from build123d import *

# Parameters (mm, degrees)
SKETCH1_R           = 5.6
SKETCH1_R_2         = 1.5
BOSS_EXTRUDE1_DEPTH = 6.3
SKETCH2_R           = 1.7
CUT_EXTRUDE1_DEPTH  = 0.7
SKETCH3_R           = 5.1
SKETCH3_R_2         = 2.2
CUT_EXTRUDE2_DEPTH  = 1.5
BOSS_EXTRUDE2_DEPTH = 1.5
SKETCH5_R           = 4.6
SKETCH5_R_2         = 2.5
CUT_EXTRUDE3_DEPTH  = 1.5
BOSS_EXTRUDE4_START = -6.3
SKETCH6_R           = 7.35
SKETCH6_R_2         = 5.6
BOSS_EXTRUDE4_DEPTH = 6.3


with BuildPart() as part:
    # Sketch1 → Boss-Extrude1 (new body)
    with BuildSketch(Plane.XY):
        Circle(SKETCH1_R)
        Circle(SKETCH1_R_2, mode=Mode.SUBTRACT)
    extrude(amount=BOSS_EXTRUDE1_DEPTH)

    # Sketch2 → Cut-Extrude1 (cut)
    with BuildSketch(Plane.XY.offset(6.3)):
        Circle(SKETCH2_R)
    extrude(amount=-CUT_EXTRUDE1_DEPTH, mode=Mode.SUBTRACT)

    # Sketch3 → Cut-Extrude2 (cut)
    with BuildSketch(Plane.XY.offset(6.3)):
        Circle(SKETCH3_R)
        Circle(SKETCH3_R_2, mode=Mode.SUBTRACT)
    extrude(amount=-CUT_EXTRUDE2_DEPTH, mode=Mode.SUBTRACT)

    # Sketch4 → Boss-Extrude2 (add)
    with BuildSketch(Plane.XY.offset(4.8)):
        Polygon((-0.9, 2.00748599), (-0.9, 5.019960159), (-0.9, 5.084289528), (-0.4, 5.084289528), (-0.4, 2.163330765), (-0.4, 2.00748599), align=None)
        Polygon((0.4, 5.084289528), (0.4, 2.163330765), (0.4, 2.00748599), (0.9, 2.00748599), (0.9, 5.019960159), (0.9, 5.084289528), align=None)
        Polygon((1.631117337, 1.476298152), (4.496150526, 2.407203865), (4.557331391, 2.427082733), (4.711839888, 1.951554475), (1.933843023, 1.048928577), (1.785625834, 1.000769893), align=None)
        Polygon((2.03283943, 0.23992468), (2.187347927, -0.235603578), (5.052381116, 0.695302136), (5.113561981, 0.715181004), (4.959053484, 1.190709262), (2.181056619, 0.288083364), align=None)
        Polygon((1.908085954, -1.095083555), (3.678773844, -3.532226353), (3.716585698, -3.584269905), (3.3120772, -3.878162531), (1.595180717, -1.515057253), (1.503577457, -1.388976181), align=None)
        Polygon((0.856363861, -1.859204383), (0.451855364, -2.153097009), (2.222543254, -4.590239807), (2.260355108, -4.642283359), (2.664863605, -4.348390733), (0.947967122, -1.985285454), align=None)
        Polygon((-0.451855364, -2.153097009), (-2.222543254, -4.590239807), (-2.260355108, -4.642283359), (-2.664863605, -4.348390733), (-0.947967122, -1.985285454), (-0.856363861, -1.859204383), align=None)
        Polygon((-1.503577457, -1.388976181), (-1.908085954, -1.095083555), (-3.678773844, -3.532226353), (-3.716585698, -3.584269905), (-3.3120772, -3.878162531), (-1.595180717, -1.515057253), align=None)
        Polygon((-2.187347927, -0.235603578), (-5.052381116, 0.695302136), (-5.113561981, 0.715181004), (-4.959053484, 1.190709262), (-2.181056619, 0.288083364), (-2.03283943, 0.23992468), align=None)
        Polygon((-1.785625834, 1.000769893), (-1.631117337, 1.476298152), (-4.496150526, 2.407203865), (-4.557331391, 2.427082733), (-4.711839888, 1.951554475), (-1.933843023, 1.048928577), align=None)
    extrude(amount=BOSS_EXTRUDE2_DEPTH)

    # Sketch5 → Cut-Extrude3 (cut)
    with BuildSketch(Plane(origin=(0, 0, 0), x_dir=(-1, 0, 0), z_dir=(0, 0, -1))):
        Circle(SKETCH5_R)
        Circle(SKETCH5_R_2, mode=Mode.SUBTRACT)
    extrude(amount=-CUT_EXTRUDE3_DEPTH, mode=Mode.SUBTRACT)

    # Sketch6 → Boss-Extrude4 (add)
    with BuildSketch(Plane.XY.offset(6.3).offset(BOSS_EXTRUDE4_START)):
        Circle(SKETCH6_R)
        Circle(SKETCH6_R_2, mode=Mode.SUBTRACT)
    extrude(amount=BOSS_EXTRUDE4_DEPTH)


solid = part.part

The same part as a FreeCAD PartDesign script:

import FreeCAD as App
import Part
import Sketcher

V = App.Vector
Q = App.Units.Quantity

doc = App.newDocument("Part")
params = doc.addObject("Spreadsheet::Sheet", "Params")
for row, (alias, value) in enumerate([
    ("sketch1_diameter", "3 mm"),
    ("sketch1_diameter2", "11.2 mm"),
    ("pad1_length", "6.3 mm"),
    ("sketch2_diameter", "3.4 mm"),
    ("pocket1_length", "0.7 mm"),
    ("sketch3_diameter", "10.2 mm"),
    ("sketch3_diameter2", "4.4 mm"),
    ("pocket2_length", "1.5 mm"),
    ("sketch4_width", "0.5 mm"),
    ("sketch4_length", "0.5 mm"),
    ("pad2_length", "1.5 mm"),
    ("sketch5_diameter", "5 mm"),
    ("sketch5_diameter2", "9.2 mm"),
    ("pocket3_length", "1.5 mm"),
    ("sketch6_diameter", "14.7 mm"),
    ("sketch6_diameter2", "11.2 mm"),
    ("pad3_length", "6.3 mm"),
], start=1):
    params.set(f"A{row}", alias)
    params.set(f"B{row}", "=" + value)
    params.setAlias(f"B{row}", alias)

body = doc.addObject("PartDesign::Body", "Body")

sketch1 = body.newObject("Sketcher::SketchObject", "Sketch")
sketch1.AttachmentSupport = (doc.getObject("XY_Plane"), [""])
sketch1.MapMode = "FlatFace"
sketch1.addGeometry(Part.Circle(V(0, 0, 0), V(0, 0, 1), 5.6), False)
sketch1.addGeometry(Part.Circle(V(0, 0, 0), V(0, 0, 1), 1.5), False)
sketch1.addConstraint(Sketcher.Constraint("Coincident", 0, 3, -1, 1))
sketch1.addConstraint(Sketcher.Constraint("Coincident", 1, 3, -1, 1))
sketch1.addConstraint(Sketcher.Constraint("Diameter", 1, 3.0))
sketch1.addConstraint(Sketcher.Constraint("Diameter", 0, 11.2))
sketch1.setExpression("Constraints[2]", "Params.sketch1_diameter")
sketch1.setExpression("Constraints[3]", "Params.sketch1_diameter2")
pad1 = body.newObject("PartDesign::Pad", "Pad")
pad1.Profile = sketch1
pad1.setExpression("Length", "Params.pad1_length")

sketch2 = body.newObject("Sketcher::SketchObject", "Sketch001")
sketch2.AttachmentSupport = (doc.getObject("XY_Plane"), [""])
sketch2.MapMode = "FlatFace"
sketch2.AttachmentOffset = App.Placement(V(0, 0, 6.3), App.Rotation())
sketch2.addGeometry(Part.Circle(V(0, 0, 0), V(0, 0, 1), 1.7), False)
sketch2.addConstraint(Sketcher.Constraint("Coincident", 0, 3, -1, 1))
sketch2.addConstraint(Sketcher.Constraint("Diameter", 0, 3.4))
sketch2.setExpression("Constraints[1]", "Params.sketch2_diameter")
pocket1 = body.newObject("PartDesign::Pocket", "Pocket")
pocket1.Profile = sketch2
pocket1.setExpression("Length", "Params.pocket1_length")

sketch3 = body.newObject("Sketcher::SketchObject", "Sketch002")
sketch3.AttachmentSupport = (doc.getObject("XY_Plane"), [""])
sketch3.MapMode = "FlatFace"
sketch3.AttachmentOffset = App.Placement(V(0, 0, 6.3), App.Rotation())
sketch3.addGeometry(Part.Circle(V(0, 0, 0), V(0, 0, 1), 5.1), False)
sketch3.addGeometry(Part.Circle(V(0, 0, 0), V(0, 0, 1), 2.2), False)
sketch3.addConstraint(Sketcher.Constraint("Coincident", 0, 3, -1, 1))
sketch3.addConstraint(Sketcher.Constraint("Coincident", 1, 3, -1, 1))
sketch3.addConstraint(Sketcher.Constraint("Diameter", 0, 10.2))
sketch3.addConstraint(Sketcher.Constraint("Diameter", 1, 4.4))
sketch3.setExpression("Constraints[2]", "Params.sketch3_diameter")
sketch3.setExpression("Constraints[3]", "Params.sketch3_diameter2")
pocket2 = body.newObject("PartDesign::Pocket", "Pocket001")
pocket2.Profile = sketch3
pocket2.setExpression("Length", "Params.pocket2_length")

sketch4 = body.newObject("Sketcher::SketchObject", "Sketch003")
sketch4.AttachmentSupport = (doc.getObject("XY_Plane"), [""])
sketch4.MapMode = "FlatFace"
sketch4.AttachmentOffset = App.Placement(V(0, 0, 4.8), App.Rotation())
sketch4.addGeometry(Part.LineSegment(V(-0.9, 5.08, 0), V(-0.9, 2.01, 0)), False)
sketch4.addGeometry(Part.LineSegment(V(-0.9, 2.01, 0), V(-0.4, 2.01, 0)), False)
sketch4.addGeometry(Part.LineSegment(V(-0.4, 2.01, 0), V(-0.4, 5.08, 0)), False)
sketch4.addGeometry(Part.LineSegment(V(-0.4, 5.08, 0), V(-0.9, 5.08, 0)), False)
sketch4.addGeometry(Part.LineSegment(V(0.4, 5.08, 0), V(0.4, 2.01, 0)), False)
sketch4.addGeometry(Part.LineSegment(V(0.4, 2.01, 0), V(0.9, 2.01, 0)), False)
sketch4.addGeometry(Part.LineSegment(V(0.9, 2.01, 0), V(0.9, 5.08, 0)), False)
sketch4.addGeometry(Part.LineSegment(V(0.9, 5.08, 0), V(0.4, 5.08, 0)), False)
sketch4.addGeometry(Part.LineSegment(V(4.5, 2.41, 0), V(1.63, 1.48, 0)), False)
sketch4.addGeometry(Part.LineSegment(V(1.63, 1.48, 0), V(1.79, 1, 0)), False)
sketch4.addGeometry(Part.LineSegment(V(1.79, 1, 0), V(1.93, 1.05, 0)), False)
sketch4.addGeometry(Part.LineSegment(V(1.93, 1.05, 0), V(4.71, 1.95, 0)), False)
sketch4.addGeometry(Part.LineSegment(V(4.71, 1.95, 0), V(4.56, 2.43, 0)), False)
sketch4.addGeometry(Part.LineSegment(V(4.56, 2.43, 0), V(4.5, 2.41, 0)), False)
sketch4.addGeometry(Part.LineSegment(V(2.03, 0.24, 0), V(2.19, -0.24, 0)), False)
sketch4.addGeometry(Part.LineSegment(V(2.19, -0.24, 0), V(5.05, 0.7, 0)), False)
sketch4.addGeometry(Part.LineSegment(V(5.05, 0.7, 0), V(5.11, 0.72, 0)), False)
sketch4.addGeometry(Part.LineSegment(V(5.11, 0.72, 0), V(4.96, 1.19, 0)), False)
sketch4.addGeometry(Part.LineSegment(V(4.96, 1.19, 0), V(2.18, 0.29, 0)), False)
sketch4.addGeometry(Part.LineSegment(V(2.18, 0.29, 0), V(2.03, 0.24, 0)), False)
sketch4.addGeometry(Part.LineSegment(V(3.68, -3.53, 0), V(1.91, -1.1, 0)), False)
sketch4.addGeometry(Part.LineSegment(V(1.91, -1.1, 0), V(1.5, -1.39, 0)), False)
sketch4.addGeometry(Part.LineSegment(V(1.5, -1.39, 0), V(1.6, -1.52, 0)), False)
sketch4.addGeometry(Part.LineSegment(V(1.6, -1.52, 0), V(3.31, -3.88, 0)), False)
sketch4.addGeometry(Part.LineSegment(V(3.31, -3.88, 0), V(3.72, -3.58, 0)), False)
sketch4.addGeometry(Part.LineSegment(V(3.72, -3.58, 0), V(3.68, -3.53, 0)), False)
sketch4.addGeometry(Part.LineSegment(V(0.86, -1.86, 0), V(0.45, -2.15, 0)), False)
sketch4.addGeometry(Part.LineSegment(V(0.45, -2.15, 0), V(2.22, -4.59, 0)), False)
sketch4.addGeometry(Part.LineSegment(V(2.22, -4.59, 0), V(2.26, -4.64, 0)), False)
sketch4.addGeometry(Part.LineSegment(V(2.26, -4.64, 0), V(2.66, -4.35, 0)), False)
sketch4.addGeometry(Part.LineSegment(V(2.66, -4.35, 0), V(0.95, -1.99, 0)), False)
sketch4.addGeometry(Part.LineSegment(V(0.95, -1.99, 0), V(0.86, -1.86, 0)), False)
sketch4.addGeometry(Part.LineSegment(V(-2.22, -4.59, 0), V(-0.45, -2.15, 0)), False)
sketch4.addGeometry(Part.LineSegment(V(-0.45, -2.15, 0), V(-0.86, -1.86, 0)), False)
sketch4.addGeometry(Part.LineSegment(V(-0.86, -1.86, 0), V(-0.95, -1.99, 0)), False)
sketch4.addGeometry(Part.LineSegment(V(-0.95, -1.99, 0), V(-2.66, -4.35, 0)), False)
sketch4.addGeometry(Part.LineSegment(V(-2.66, -4.35, 0), V(-2.26, -4.64, 0)), False)
sketch4.addGeometry(Part.LineSegment(V(-2.26, -4.64, 0), V(-2.22, -4.59, 0)), False)
sketch4.addGeometry(Part.LineSegment(V(-1.5, -1.39, 0), V(-1.91, -1.1, 0)), False)
sketch4.addGeometry(Part.LineSegment(V(-1.91, -1.1, 0), V(-3.68, -3.53, 0)), False)
sketch4.addGeometry(Part.LineSegment(V(-3.68, -3.53, 0), V(-3.72, -3.58, 0)), False)
sketch4.addGeometry(Part.LineSegment(V(-3.72, -3.58, 0), V(-3.31, -3.88, 0)), False)
sketch4.addGeometry(Part.LineSegment(V(-3.31, -3.88, 0), V(-1.6, -1.52, 0)), False)
sketch4.addGeometry(Part.LineSegment(V(-1.6, -1.52, 0), V(-1.5, -1.39, 0)), False)
sketch4.addGeometry(Part.LineSegment(V(-5.05, 0.7, 0), V(-2.19, -0.24, 0)), False)
sketch4.addGeometry(Part.LineSegment(V(-2.19, -0.24, 0), V(-2.03, 0.24, 0)), False)
sketch4.addGeometry(Part.LineSegment(V(-2.03, 0.24, 0), V(-2.18, 0.29, 0)), False)
sketch4.addGeometry(Part.LineSegment(V(-2.18, 0.29, 0), V(-4.96, 1.19, 0)), False)
sketch4.addGeometry(Part.LineSegment(V(-4.96, 1.19, 0), V(-5.11, 0.72, 0)), False)
sketch4.addGeometry(Part.LineSegment(V(-5.11, 0.72, 0), V(-5.05, 0.7, 0)), False)
sketch4.addGeometry(Part.LineSegment(V(-1.79, 1, 0), V(-1.63, 1.48, 0)), False)
sketch4.addGeometry(Part.LineSegment(V(-1.63, 1.48, 0), V(-4.5, 2.41, 0)), False)
sketch4.addGeometry(Part.LineSegment(V(-4.5, 2.41, 0), V(-4.56, 2.43, 0)), False)
sketch4.addGeometry(Part.LineSegment(V(-4.56, 2.43, 0), V(-4.71, 1.95, 0)), False)
sketch4.addGeometry(Part.LineSegment(V(-4.71, 1.95, 0), V(-1.93, 1.05, 0)), False)
sketch4.addGeometry(Part.LineSegment(V(-1.93, 1.05, 0), V(-1.79, 1, 0)), False)
sketch4.addConstraint(Sketcher.Constraint("Coincident", 0, 2, 1, 1))
sketch4.addConstraint(Sketcher.Constraint("Coincident", 1, 2, 2, 1))
sketch4.addConstraint(Sketcher.Constraint("Coincident", 2, 2, 3, 1))
sketch4.addConstraint(Sketcher.Constraint("Coincident", 3, 2, 0, 1))
sketch4.addConstraint(Sketcher.Constraint("Coincident", 4, 2, 5, 1))
sketch4.addConstraint(Sketcher.Constraint("Coincident", 5, 2, 6, 1))
sketch4.addConstraint(Sketcher.Constraint("Coincident", 6, 2, 7, 1))
sketch4.addConstraint(Sketcher.Constraint("Coincident", 7, 2, 4, 1))
sketch4.addConstraint(Sketcher.Constraint("Coincident", 8, 2, 9, 1))
sketch4.addConstraint(Sketcher.Constraint("Coincident", 9, 2, 10, 1))
sketch4.addConstraint(Sketcher.Constraint("Coincident", 10, 2, 11, 1))
sketch4.addConstraint(Sketcher.Constraint("Coincident", 11, 2, 12, 1))
sketch4.addConstraint(Sketcher.Constraint("Coincident", 12, 2, 13, 1))
sketch4.addConstraint(Sketcher.Constraint("Coincident", 13, 2, 8, 1))
sketch4.addConstraint(Sketcher.Constraint("Coincident", 14, 2, 15, 1))
sketch4.addConstraint(Sketcher.Constraint("Coincident", 15, 2, 16, 1))
sketch4.addConstraint(Sketcher.Constraint("Coincident", 16, 2, 17, 1))
sketch4.addConstraint(Sketcher.Constraint("Coincident", 17, 2, 18, 1))
sketch4.addConstraint(Sketcher.Constraint("Coincident", 18, 2, 19, 1))
sketch4.addConstraint(Sketcher.Constraint("Coincident", 19, 2, 14, 1))
sketch4.addConstraint(Sketcher.Constraint("Coincident", 20, 2, 21, 1))
sketch4.addConstraint(Sketcher.Constraint("Coincident", 21, 2, 22, 1))
sketch4.addConstraint(Sketcher.Constraint("Coincident", 22, 2, 23, 1))
sketch4.addConstraint(Sketcher.Constraint("Coincident", 23, 2, 24, 1))
sketch4.addConstraint(Sketcher.Constraint("Coincident", 24, 2, 25, 1))
sketch4.addConstraint(Sketcher.Constraint("Coincident", 25, 2, 20, 1))
sketch4.addConstraint(Sketcher.Constraint("Coincident", 26, 2, 27, 1))
sketch4.addConstraint(Sketcher.Constraint("Coincident", 27, 2, 28, 1))
sketch4.addConstraint(Sketcher.Constraint("Coincident", 28, 2, 29, 1))
sketch4.addConstraint(Sketcher.Constraint("Coincident", 29, 2, 30, 1))
sketch4.addConstraint(Sketcher.Constraint("Coincident", 30, 2, 31, 1))
sketch4.addConstraint(Sketcher.Constraint("Coincident", 31, 2, 26, 1))
sketch4.addConstraint(Sketcher.Constraint("Coincident", 32, 2, 33, 1))
sketch4.addConstraint(Sketcher.Constraint("Coincident", 33, 2, 34, 1))
sketch4.addConstraint(Sketcher.Constraint("Coincident", 34, 2, 35, 1))
sketch4.addConstraint(Sketcher.Constraint("Coincident", 35, 2, 36, 1))
sketch4.addConstraint(Sketcher.Constraint("Coincident", 36, 2, 37, 1))
sketch4.addConstraint(Sketcher.Constraint("Coincident", 37, 2, 32, 1))
sketch4.addConstraint(Sketcher.Constraint("Coincident", 38, 2, 39, 1))
sketch4.addConstraint(Sketcher.Constraint("Coincident", 39, 2, 40, 1))
sketch4.addConstraint(Sketcher.Constraint("Coincident", 40, 2, 41, 1))
sketch4.addConstraint(Sketcher.Constraint("Coincident", 41, 2, 42, 1))
sketch4.addConstraint(Sketcher.Constraint("Coincident", 42, 2, 43, 1))
sketch4.addConstraint(Sketcher.Constraint("Coincident", 43, 2, 38, 1))
sketch4.addConstraint(Sketcher.Constraint("Coincident", 44, 2, 45, 1))
sketch4.addConstraint(Sketcher.Constraint("Coincident", 45, 2, 46, 1))
sketch4.addConstraint(Sketcher.Constraint("Coincident", 46, 2, 47, 1))
sketch4.addConstraint(Sketcher.Constraint("Coincident", 47, 2, 48, 1))
sketch4.addConstraint(Sketcher.Constraint("Coincident", 48, 2, 49, 1))
sketch4.addConstraint(Sketcher.Constraint("Coincident", 49, 2, 44, 1))
sketch4.addConstraint(Sketcher.Constraint("Coincident", 50, 2, 51, 1))
sketch4.addConstraint(Sketcher.Constraint("Coincident", 51, 2, 52, 1))
sketch4.addConstraint(Sketcher.Constraint("Coincident", 52, 2, 53, 1))
sketch4.addConstraint(Sketcher.Constraint("Coincident", 53, 2, 54, 1))
sketch4.addConstraint(Sketcher.Constraint("Coincident", 54, 2, 55, 1))
sketch4.addConstraint(Sketcher.Constraint("Coincident", 55, 2, 50, 1))
sketch4.addConstraint(Sketcher.Constraint("Vertical", 0))
sketch4.addConstraint(Sketcher.Constraint("Horizontal", 1))
sketch4.addConstraint(Sketcher.Constraint("Vertical", 2))
sketch4.addConstraint(Sketcher.Constraint("Horizontal", 3))
sketch4.addConstraint(Sketcher.Constraint("Vertical", 4))
sketch4.addConstraint(Sketcher.Constraint("Horizontal", 5))
sketch4.addConstraint(Sketcher.Constraint("Vertical", 6))
sketch4.addConstraint(Sketcher.Constraint("Horizontal", 7))
sketch4.addConstraint(Sketcher.Constraint("Symmetric", 1, 2, 4, 2, -2))
sketch4.addConstraint(Sketcher.Constraint("Symmetric", 3, 2, 6, 2, -2))
sketch4.addConstraint(Sketcher.Constraint("Symmetric", 26, 2, 32, 2, -2))
sketch4.addConstraint(Sketcher.Constraint("Symmetric", 31, 2, 33, 2, -2))
sketch4.addConstraint(Sketcher.Constraint("Symmetric", 30, 2, 34, 2, -2))
sketch4.addConstraint(Sketcher.Constraint("Symmetric", 29, 2, 35, 2, -2))
sketch4.addConstraint(Sketcher.Constraint("Symmetric", 28, 2, 36, 2, -2))
sketch4.addConstraint(Sketcher.Constraint("Symmetric", 27, 2, 37, 2, -2))
sketch4.addConstraint(Sketcher.Constraint("Symmetric", 20, 2, 38, 2, -2))
sketch4.addConstraint(Sketcher.Constraint("Symmetric", 25, 2, 39, 2, -2))
sketch4.addConstraint(Sketcher.Constraint("Symmetric", 24, 2, 40, 2, -2))
sketch4.addConstraint(Sketcher.Constraint("Symmetric", 23, 2, 41, 2, -2))
sketch4.addConstraint(Sketcher.Constraint("Symmetric", 22, 2, 42, 2, -2))
sketch4.addConstraint(Sketcher.Constraint("Symmetric", 21, 2, 43, 2, -2))
sketch4.addConstraint(Sketcher.Constraint("Symmetric", 14, 2, 44, 2, -2))
sketch4.addConstraint(Sketcher.Constraint("Symmetric", 19, 2, 45, 2, -2))
sketch4.addConstraint(Sketcher.Constraint("Symmetric", 18, 2, 46, 2, -2))
sketch4.addConstraint(Sketcher.Constraint("Symmetric", 17, 2, 47, 2, -2))
sketch4.addConstraint(Sketcher.Constraint("Symmetric", 16, 2, 48, 2, -2))
sketch4.addConstraint(Sketcher.Constraint("Symmetric", 15, 2, 49, 2, -2))
sketch4.addConstraint(Sketcher.Constraint("Symmetric", 8, 2, 50, 2, -2))
sketch4.addConstraint(Sketcher.Constraint("Symmetric", 13, 2, 51, 2, -2))
sketch4.addConstraint(Sketcher.Constraint("Symmetric", 12, 2, 52, 2, -2))
sketch4.addConstraint(Sketcher.Constraint("Symmetric", 11, 2, 53, 2, -2))
sketch4.addConstraint(Sketcher.Constraint("Symmetric", 10, 2, 54, 2, -2))
sketch4.addConstraint(Sketcher.Constraint("Symmetric", 9, 2, 55, 2, -2))
sketch4.addConstraint(Sketcher.Constraint("Perpendicular", 8, 9))
sketch4.addConstraint(Sketcher.Constraint("Perpendicular", 9, 10))
sketch4.addConstraint(Sketcher.Constraint("Parallel", 10, 11))
sketch4.addConstraint(Sketcher.Constraint("Perpendicular", 11, 12))
sketch4.addConstraint(Sketcher.Constraint("Perpendicular", 12, 13))
sketch4.addConstraint(Sketcher.Constraint("Perpendicular", 13, 14))
sketch4.addConstraint(Sketcher.Constraint("Perpendicular", 14, 15))
sketch4.addConstraint(Sketcher.Constraint("Parallel", 15, 16))
sketch4.addConstraint(Sketcher.Constraint("Perpendicular", 16, 17))
sketch4.addConstraint(Sketcher.Constraint("Perpendicular", 17, 18))
sketch4.addConstraint(Sketcher.Constraint("Parallel", 18, 19))
sketch4.addConstraint(Sketcher.Constraint("Perpendicular", 20, 21))
sketch4.addConstraint(Sketcher.Constraint("Perpendicular", 21, 22))
sketch4.addConstraint(Sketcher.Constraint("Parallel", 22, 23))
sketch4.addConstraint(Sketcher.Constraint("Perpendicular", 23, 24))
sketch4.addConstraint(Sketcher.Constraint("Perpendicular", 24, 25))
sketch4.addConstraint(Sketcher.Constraint("Perpendicular", 25, 26))
sketch4.addConstraint(Sketcher.Constraint("Perpendicular", 26, 27))
sketch4.addConstraint(Sketcher.Constraint("Parallel", 27, 28))
sketch4.addConstraint(Sketcher.Constraint("Perpendicular", 28, 29))
sketch4.addConstraint(Sketcher.Constraint("Perpendicular", 29, 30))
sketch4.addConstraint(Sketcher.Constraint("Parallel", 30, 31))
sketch4.addConstraint(Sketcher.Constraint("Equal", 12, 14))
sketch4.addConstraint(Sketcher.Constraint("Equal", 8, 15))
sketch4.addConstraint(Sketcher.Constraint("Equal", 13, 16))
sketch4.addConstraint(Sketcher.Constraint("Equal", 11, 18))
sketch4.addConstraint(Sketcher.Constraint("Equal", 15, 20))
sketch4.addConstraint(Sketcher.Constraint("Equal", 17, 21))
sketch4.addConstraint(Sketcher.Constraint("Equal", 19, 22))
sketch4.addConstraint(Sketcher.Constraint("Equal", 18, 23))
sketch4.addConstraint(Sketcher.Constraint("Equal", 24, 26))
sketch4.addConstraint(Sketcher.Constraint("Equal", 20, 27))
sketch4.addConstraint(Sketcher.Constraint("Equal", 25, 28))
sketch4.addConstraint(Sketcher.Constraint("Equal", 23, 30))
sketch4.addConstraint(Sketcher.Constraint("Angle", 8, Q("-162 deg")))
sketch4.addConstraint(Sketcher.Constraint("Angle", 20, Q("126 deg")))
sketch4.addConstraint(Sketcher.Constraint("DistanceX", 1, 1, 1, 2, 0.5))
sketch4.addConstraint(Sketcher.Constraint("Distance", 9, 0.5))
sketch4.addConstraint(Sketcher.Constraint("DistanceX", 0, 2, -1, 1, 0.9))
sketch4.addConstraint(Sketcher.Constraint("DistanceY", -1, 1, 8, 2, 1.476298))
sketch4.addConstraint(Sketcher.Constraint("DistanceY", 14, 2, 8, 2, 1.711902))
sketch4.addConstraint(Sketcher.Constraint("DistanceY", 21, 2, 19, 2, 1.628901))
sketch4.addConstraint(Sketcher.Constraint("DistanceX", 21, 2, 23, 2, 1.8085))
sketch4.addConstraint(Sketcher.Constraint("DistanceY", 30, 2, 20, 2, 0.890202))
sketch4.addConstraint(Sketcher.Constraint("DistanceY", 33, 2, 44, 2, 1.623601))
sketch4.addConstraint(Sketcher.Constraint("Distance", 13, 0.064329))
sketch4.addConstraint(Sketcher.Constraint("DistanceY", 0, 2, 0, 1, 3.076804))
sketch4.addConstraint(Sketcher.Constraint("DistanceY", -1, 1, 2, 2, 5.08429))
sketch4.addConstraint(Sketcher.Constraint("DistanceX", -1, 1, 11, 2, 4.71184))
sketch4.addConstraint(Sketcher.Constraint("DistanceX", -1, 1, 15, 2, 5.052381))
sketch4.addConstraint(Sketcher.Constraint("DistanceX", -1, 1, 22, 2, 1.595181))
sketch4.addConstraint(Sketcher.Constraint("DistanceX", 26, 2, 20, 2, 1.456231))
sketch4.setExpression("Constraints[126]", "Params.sketch4_width")
sketch4.setExpression("Constraints[127]", "Params.sketch4_length")
pad2 = body.newObject("PartDesign::Pad", "Pad001")
pad2.Profile = sketch4
pad2.setExpression("Length", "Params.pad2_length")

sketch5 = body.newObject("Sketcher::SketchObject", "Sketch004")
sketch5.AttachmentSupport = (doc.getObject("XY_Plane"), [""])
sketch5.MapMode = "FlatFace"
sketch5.addGeometry(Part.Circle(V(0, 0, 0), V(0, 0, 1), 4.6), False)
sketch5.addGeometry(Part.Circle(V(0, 0, 0), V(0, 0, 1), 2.5), False)
sketch5.addConstraint(Sketcher.Constraint("Coincident", 0, 3, -1, 1))
sketch5.addConstraint(Sketcher.Constraint("Coincident", 1, 3, -1, 1))
sketch5.addConstraint(Sketcher.Constraint("Diameter", 1, 5.0))
sketch5.addConstraint(Sketcher.Constraint("Diameter", 0, 9.2))
sketch5.setExpression("Constraints[2]", "Params.sketch5_diameter")
sketch5.setExpression("Constraints[3]", "Params.sketch5_diameter2")
pocket3 = body.newObject("PartDesign::Pocket", "Pocket002")
pocket3.Profile = sketch5
pocket3.setExpression("Length", "Params.pocket3_length")
pocket3.Reversed = True

sketch6 = body.newObject("Sketcher::SketchObject", "Sketch005")
sketch6.AttachmentSupport = (doc.getObject("XY_Plane"), [""])
sketch6.MapMode = "FlatFace"
sketch6.addGeometry(Part.Circle(V(0, 0, 0), V(0, 0, 1), 7), False)
sketch6.addGeometry(Part.Circle(V(0, 0, 0), V(0, 0, 1), 6), False)
sketch6.addConstraint(Sketcher.Constraint("Coincident", 0, 3, -1, 1))
sketch6.addConstraint(Sketcher.Constraint("Coincident", 1, 3, -1, 1))
sketch6.addConstraint(Sketcher.Constraint("Diameter", 0, 14.7))
sketch6.addConstraint(Sketcher.Constraint("Diameter", 1, 11.2))
sketch6.setExpression("Constraints[2]", "Params.sketch6_diameter")
sketch6.setExpression("Constraints[3]", "Params.sketch6_diameter2")
pad3 = body.newObject("PartDesign::Pad", "Pad002")
pad3.Profile = sketch6
pad3.setExpression("Length", "Params.pad3_length")

doc.recompute()
